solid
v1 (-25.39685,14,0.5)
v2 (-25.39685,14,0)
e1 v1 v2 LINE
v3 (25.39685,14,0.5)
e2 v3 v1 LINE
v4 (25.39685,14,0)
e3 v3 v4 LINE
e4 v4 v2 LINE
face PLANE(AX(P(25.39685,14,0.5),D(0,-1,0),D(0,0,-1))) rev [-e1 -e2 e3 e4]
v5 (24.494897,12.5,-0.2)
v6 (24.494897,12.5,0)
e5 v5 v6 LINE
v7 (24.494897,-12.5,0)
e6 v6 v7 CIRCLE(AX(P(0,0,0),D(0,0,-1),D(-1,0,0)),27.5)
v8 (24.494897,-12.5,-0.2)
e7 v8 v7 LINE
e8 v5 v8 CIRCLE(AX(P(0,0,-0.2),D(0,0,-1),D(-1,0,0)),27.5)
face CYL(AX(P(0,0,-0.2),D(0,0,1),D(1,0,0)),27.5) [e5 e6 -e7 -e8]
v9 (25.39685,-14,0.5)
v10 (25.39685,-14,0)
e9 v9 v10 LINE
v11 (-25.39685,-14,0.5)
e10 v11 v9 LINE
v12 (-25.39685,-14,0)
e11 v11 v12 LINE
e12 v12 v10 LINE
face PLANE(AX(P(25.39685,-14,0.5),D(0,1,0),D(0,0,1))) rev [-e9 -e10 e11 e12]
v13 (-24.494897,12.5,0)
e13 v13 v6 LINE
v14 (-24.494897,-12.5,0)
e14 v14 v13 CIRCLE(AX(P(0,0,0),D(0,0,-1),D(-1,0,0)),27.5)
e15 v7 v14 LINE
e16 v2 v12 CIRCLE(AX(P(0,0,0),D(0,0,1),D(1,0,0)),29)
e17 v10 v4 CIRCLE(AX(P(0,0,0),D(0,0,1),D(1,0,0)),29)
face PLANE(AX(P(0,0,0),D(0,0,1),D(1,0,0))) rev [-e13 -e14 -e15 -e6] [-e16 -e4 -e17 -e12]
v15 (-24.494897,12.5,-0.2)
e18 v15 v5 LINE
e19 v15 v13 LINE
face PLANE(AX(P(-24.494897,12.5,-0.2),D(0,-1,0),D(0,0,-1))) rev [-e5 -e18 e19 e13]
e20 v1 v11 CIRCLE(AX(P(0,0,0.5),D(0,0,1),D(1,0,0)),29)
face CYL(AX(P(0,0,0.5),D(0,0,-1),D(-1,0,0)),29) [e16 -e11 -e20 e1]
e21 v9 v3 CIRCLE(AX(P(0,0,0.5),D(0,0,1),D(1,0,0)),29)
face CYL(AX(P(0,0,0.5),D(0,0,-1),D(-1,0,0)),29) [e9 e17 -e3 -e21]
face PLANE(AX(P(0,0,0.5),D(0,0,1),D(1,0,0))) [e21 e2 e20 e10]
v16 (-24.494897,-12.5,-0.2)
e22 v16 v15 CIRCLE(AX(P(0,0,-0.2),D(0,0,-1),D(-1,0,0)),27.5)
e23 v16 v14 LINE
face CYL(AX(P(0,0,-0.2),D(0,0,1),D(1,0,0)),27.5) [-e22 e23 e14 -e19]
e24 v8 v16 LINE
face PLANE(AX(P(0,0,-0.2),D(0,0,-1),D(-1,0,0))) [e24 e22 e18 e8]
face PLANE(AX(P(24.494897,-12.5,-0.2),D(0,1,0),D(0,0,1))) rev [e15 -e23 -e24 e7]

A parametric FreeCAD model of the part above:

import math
import FreeCAD as App
import Part
import Sketcher

V = App.Vector

doc = App.newDocument("Part")
params = doc.addObject("Spreadsheet::Sheet", "Params")
for row, (alias, value) in enumerate([
    ("sketch1_radius", "29 mm"),
    ("pad1_length", "0.5 mm"),
    ("sketch2_radius", "27.5 mm"),
    ("pad2_length", "0.2 mm"),
], start=1):
    params.set(f"A{row}", alias)
    params.set(f"B{row}", "=" + value)
    params.setAlias(f"B{row}", alias)

body = doc.addObject("PartDesign::Body", "Body")

sketch1 = body.newObject("Sketcher::SketchObject", "Sketch")
sketch1.AttachmentSupport = (doc.getObject("XY_Plane"), [""])
sketch1.MapMode = "FlatFace"
sketch1.addGeometry([
    Part.LineSegment(V(25, 14, 0), V(-25, 14, 0)),
    Part.ArcOfCircle(Part.Circle(V(0, 0, 0), V(0, 0, 1), 29), math.radians(151), math.radians(209)),
    Part.LineSegment(V(-25, -14, 0), V(25, -14, 0)),
    Part.ArcOfCircle(Part.Circle(V(0, 0, 0), V(0, 0, 1), 29), math.radians(-29), math.radians(29)),
], False)
sketch1.addConstraint([
    Sketcher.Constraint("Coincident", 0, 2, 1, 1),
    Sketcher.Constraint("Coincident", 1, 2, 2, 1),
    Sketcher.Constraint("Coincident", 2, 2, 3, 1),
    Sketcher.Constraint("Coincident", 3, 2, 0, 1),
    Sketcher.Constraint("Horizontal", 0),
    Sketcher.Constraint("Horizontal", 2),
    Sketcher.Constraint("Coincident", 1, 3, -1, 1),
    Sketcher.Constraint("Coincident", 3, 3, -1, 1),
    Sketcher.Constraint("Equal", 1, 3),
    Sketcher.Constraint("Vertical", 0, 2, 1, 2),
    Sketcher.Constraint("Radius", 1, 29.0),
    Sketcher.Constraint("DistanceY", -1, 1, 0, 2, 14.0),
])
sketch1.setExpression("Constraints[10]", "Params.sketch1_radius")
pad1 = body.newObject("PartDesign::Pad", "Pad")
pad1.Profile = sketch1
pad1.setExpression("Length", "Params.pad1_length")

sketch2 = body.newObject("Sketcher::SketchObject", "Sketch001")
sketch2.AttachmentSupport = (doc.getObject("XY_Plane"), [""])
sketch2.MapMode = "FlatFace"
sketch2.addGeometry([
    Part.LineSegment(V(24, -12, 0), V(-24, -12, 0)),
    Part.ArcOfCircle(Part.Circle(V(0, 0, 0), V(0, 0, 1), 28), math.radians(153), math.radians(207)),
    Part.LineSegment(V(-24, 12, 0), V(24, 12, 0)),
    Part.ArcOfCircle(Part.Circle(V(0, 0, 0), V(0, 0, 1), 28), math.radians(-27), math.radians(27)),
], False)
sketch2.addConstraint([
    Sketcher.Constraint("Coincident", 0, 2, 1, 2),
    Sketcher.Constraint("Coincident", 1, 1, 2, 1),
    Sketcher.Constraint("Coincident", 2, 2, 3, 2),
    Sketcher.Constraint("Coincident", 3, 1, 0, 1),
    Sketcher.Constraint("Horizontal", 0),
    Sketcher.Constraint("Horizontal", 2),
    Sketcher.Constraint("Coincident", 1, 3, -1, 1),
    Sketcher.Constraint("Coincident", 3, 3, -1, 1),
    Sketcher.Constraint("Equal", 1, 3),
    Sketcher.Constraint("Vertical", 0, 2, 1, 1),
    Sketcher.Constraint("Radius", 1, 27.5),
    Sketcher.Constraint("DistanceY", 0, 2, 1, 1, 25.0),
])
sketch2.setExpression("Constraints[10]", "Params.sketch2_radius")
pad2 = body.newObject("PartDesign::Pad", "Pad001")
pad2.Profile = sketch2
pad2.setExpression("Length", "Params.pad2_length")
pad2.Reversed = True

doc.recompute()
